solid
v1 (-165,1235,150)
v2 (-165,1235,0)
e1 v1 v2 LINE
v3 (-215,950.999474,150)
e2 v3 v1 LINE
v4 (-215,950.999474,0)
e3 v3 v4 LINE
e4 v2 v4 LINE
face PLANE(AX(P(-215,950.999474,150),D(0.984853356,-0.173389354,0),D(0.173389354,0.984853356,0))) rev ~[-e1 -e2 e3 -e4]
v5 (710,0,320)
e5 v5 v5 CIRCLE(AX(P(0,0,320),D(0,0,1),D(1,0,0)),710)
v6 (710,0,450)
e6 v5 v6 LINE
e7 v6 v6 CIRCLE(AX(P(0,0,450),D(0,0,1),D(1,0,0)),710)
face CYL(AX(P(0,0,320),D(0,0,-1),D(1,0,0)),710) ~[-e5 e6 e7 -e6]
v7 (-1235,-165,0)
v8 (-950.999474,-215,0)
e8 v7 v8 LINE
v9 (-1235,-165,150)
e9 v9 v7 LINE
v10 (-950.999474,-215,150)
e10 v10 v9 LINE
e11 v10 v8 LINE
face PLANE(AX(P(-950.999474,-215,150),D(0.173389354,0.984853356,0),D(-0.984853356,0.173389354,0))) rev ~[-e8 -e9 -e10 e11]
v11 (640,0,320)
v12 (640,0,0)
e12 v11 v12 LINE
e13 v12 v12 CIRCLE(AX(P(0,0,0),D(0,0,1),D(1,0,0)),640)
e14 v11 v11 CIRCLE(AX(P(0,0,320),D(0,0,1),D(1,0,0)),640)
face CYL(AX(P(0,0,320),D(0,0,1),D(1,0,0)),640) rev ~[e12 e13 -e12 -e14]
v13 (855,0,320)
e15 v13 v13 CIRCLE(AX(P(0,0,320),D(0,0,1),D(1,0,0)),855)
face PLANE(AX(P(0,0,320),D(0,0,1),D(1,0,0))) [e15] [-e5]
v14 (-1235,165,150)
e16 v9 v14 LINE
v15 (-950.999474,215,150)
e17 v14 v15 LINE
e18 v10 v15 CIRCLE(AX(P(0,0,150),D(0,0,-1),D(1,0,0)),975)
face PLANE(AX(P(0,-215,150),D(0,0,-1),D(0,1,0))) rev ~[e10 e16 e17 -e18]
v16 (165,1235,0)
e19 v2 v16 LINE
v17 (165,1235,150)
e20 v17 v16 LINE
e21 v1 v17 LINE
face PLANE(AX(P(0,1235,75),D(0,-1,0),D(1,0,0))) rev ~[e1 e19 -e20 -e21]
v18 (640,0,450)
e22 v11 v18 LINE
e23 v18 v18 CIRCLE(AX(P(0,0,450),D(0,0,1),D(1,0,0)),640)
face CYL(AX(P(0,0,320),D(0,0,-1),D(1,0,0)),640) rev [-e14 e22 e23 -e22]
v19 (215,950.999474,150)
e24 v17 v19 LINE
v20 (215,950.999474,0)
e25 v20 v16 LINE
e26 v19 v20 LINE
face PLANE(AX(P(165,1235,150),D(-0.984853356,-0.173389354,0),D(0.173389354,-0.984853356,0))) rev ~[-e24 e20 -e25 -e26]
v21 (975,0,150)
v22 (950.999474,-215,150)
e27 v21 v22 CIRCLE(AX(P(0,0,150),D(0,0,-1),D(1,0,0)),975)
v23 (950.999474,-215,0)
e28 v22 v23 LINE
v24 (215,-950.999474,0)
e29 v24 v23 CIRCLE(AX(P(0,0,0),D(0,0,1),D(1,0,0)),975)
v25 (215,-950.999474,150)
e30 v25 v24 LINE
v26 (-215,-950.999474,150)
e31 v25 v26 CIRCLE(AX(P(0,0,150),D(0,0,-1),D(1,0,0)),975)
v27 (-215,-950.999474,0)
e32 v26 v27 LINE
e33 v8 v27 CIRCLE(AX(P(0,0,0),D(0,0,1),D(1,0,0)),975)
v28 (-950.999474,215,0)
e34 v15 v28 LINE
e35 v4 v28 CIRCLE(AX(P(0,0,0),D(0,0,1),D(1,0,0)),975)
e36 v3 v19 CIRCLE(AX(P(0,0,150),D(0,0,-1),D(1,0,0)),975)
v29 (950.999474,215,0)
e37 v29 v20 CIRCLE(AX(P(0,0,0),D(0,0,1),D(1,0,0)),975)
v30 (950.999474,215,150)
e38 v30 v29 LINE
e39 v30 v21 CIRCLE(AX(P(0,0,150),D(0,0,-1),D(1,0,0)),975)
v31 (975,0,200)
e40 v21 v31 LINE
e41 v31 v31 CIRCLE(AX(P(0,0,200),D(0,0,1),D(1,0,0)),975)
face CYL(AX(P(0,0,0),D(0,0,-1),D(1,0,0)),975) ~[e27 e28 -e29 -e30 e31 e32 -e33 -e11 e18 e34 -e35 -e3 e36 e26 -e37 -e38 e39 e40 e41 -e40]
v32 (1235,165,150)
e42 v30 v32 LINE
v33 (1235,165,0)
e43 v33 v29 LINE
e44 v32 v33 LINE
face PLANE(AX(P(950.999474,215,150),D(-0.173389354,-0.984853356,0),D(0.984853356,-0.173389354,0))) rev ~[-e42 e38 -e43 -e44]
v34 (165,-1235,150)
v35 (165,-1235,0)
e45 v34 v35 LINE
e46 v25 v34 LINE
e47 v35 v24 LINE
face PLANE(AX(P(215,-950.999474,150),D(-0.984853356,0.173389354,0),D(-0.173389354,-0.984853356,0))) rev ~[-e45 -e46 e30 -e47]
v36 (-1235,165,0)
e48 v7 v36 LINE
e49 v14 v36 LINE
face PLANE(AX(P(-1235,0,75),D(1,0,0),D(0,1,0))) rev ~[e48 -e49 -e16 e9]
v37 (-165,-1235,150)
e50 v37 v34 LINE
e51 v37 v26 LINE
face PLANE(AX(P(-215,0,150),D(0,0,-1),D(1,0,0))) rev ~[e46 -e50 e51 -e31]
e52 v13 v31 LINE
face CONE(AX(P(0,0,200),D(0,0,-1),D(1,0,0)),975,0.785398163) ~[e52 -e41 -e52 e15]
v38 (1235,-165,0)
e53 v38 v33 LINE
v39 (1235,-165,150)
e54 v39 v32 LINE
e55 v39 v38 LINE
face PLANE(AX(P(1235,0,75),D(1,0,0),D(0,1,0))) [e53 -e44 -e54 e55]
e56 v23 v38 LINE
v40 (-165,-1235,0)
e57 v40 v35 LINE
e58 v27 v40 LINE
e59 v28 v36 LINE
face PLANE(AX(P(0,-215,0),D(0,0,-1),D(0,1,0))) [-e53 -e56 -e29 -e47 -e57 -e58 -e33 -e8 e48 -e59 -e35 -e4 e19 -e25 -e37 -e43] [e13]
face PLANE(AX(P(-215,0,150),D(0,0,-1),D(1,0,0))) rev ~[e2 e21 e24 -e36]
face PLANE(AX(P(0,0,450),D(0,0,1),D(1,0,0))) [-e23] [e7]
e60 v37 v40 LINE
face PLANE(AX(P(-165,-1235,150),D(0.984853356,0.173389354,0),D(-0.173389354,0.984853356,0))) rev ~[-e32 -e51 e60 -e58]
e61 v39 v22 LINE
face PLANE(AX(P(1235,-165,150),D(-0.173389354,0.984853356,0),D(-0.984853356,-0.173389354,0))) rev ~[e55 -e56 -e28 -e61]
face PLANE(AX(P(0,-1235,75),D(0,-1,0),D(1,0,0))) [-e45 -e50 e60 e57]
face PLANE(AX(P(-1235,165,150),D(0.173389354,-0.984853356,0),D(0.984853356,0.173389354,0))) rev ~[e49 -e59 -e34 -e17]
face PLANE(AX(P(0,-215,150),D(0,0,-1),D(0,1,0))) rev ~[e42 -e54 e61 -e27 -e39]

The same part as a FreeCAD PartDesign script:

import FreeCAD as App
import Part
import Sketcher
from FreeCAD import Vector


def edges_at(feature, points):
    """Names of the edges that pass closest to the given points."""
    edges = feature.Shape.Edges
    near = lambda p: min(range(len(edges)), key=lambda i: edges[i].distToShape(Part.Vertex(*p))[0])
    return sorted({f"Edge{near(p) + 1}" for p in points})


def add_polygon(sketch, points):
    """Adds a closed chain of lines whose ends are joined by coincident constraints."""
    first, n = sketch.GeometryCount, len(points)
    for a, b in zip(points, points[1:] + points[:1]):
        sketch.addGeometry(Part.LineSegment(App.Vector(*a, 0), App.Vector(*b, 0)), False)
    for i in range(n):
        sketch.addConstraint(Sketcher.Constraint("Coincident", first + i, 2, first + (i + 1) % n, 1))

doc = App.newDocument("Part")
body = doc.addObject("PartDesign::Body", "Body")

# Sketch on XY plane
sketch1 = doc.addObject("Sketcher::SketchObject", "Sketch")
body.addObject(sketch1)
sketch1.AttachmentSupport = (doc.XY_Plane, [""])
sketch1.MapMode = "FlatFace"
sketch1.addGeometry(Part.Circle(Vector(0, 0, 0), Vector(0, 0, 1), 975), False)
sketch1.addConstraint(Sketcher.Constraint("Coincident", 0, 3, -1, 1))
sketch1.addConstraint(Sketcher.Constraint("Diameter", 0, 1950.0))
pad1 = doc.addObject("PartDesign::Pad", "Pad")
body.addObject(pad1)
pad1.Profile = sketch1
pad1.Length = 320

# Sketch on XY plane
sketch2 = doc.addObject("Sketcher::SketchObject", "Sketch001")
body.addObject(sketch2)
sketch2.AttachmentSupport = (doc.XY_Plane, [""])
sketch2.MapMode = "FlatFace"
sketch2.AttachmentOffset = App.Placement(Vector(0, 0, 320), App.Rotation())
sketch2.addGeometry(Part.Circle(Vector(0, 0, 0), Vector(0, 0, 1), 640), False)
sketch2.addConstraint(Sketcher.Constraint("Coincident", 0, 3, -1, 1))
sketch2.addConstraint(Sketcher.Constraint("Diameter", 0, 1280.0))
pocket1 = doc.addObject("PartDesign::Pocket", "Pocket")
body.addObject(pocket1)
pocket1.Profile = sketch2
pocket1.Type = "ThroughAll"

# Sketch on XZ plane
sketch3 = doc.addObject("Sketcher::SketchObject", "Sketch002")
body.addObject(sketch3)
sketch3.AttachmentSupport = (doc.XZ_Plane, [""])
sketch3.MapMode = "FlatFace"
add_polygon(sketch3, [(-215, 150), (-215, 0), (215, 0), (215, 150)])  # lines 0-3
sketch3.addConstraint(Sketcher.Constraint("Vertical", 0))
sketch3.addConstraint(Sketcher.Constraint("Horizontal", 1))
sketch3.addConstraint(Sketcher.Constraint("Vertical", 2))
sketch3.addConstraint(Sketcher.Constraint("Horizontal", 3))
sketch3.addConstraint(Sketcher.Constraint("Symmetric", 0, 2, 1, 2, -1, 1))
sketch3.addConstraint(Sketcher.Constraint("DistanceX", 1, 1, 1, 2, 430.0))
sketch3.addConstraint(Sketcher.Constraint("DistanceY", 0, 2, 0, 1, 150.0))
pad2 = doc.addObject("PartDesign::Pad", "Pad001")
body.addObject(pad2)
pad2.Profile = sketch3
pad2.Length = 2470
pad2.Midplane = True

# Sketch on YZ plane
sketch4 = doc.addObject("Sketcher::SketchObject", "Sketch003")
body.addObject(sketch4)
sketch4.AttachmentSupport = (doc.YZ_Plane, [""])
sketch4.MapMode = "FlatFace"
add_polygon(sketch4, [(-215, 150), (-215, 0), (215, 0), (215, 150)])  # lines 0-3
sketch4.addConstraint(Sketcher.Constraint("Vertical", 0))
sketch4.addConstraint(Sketcher.Constraint("Horizontal", 1))
sketch4.addConstraint(Sketcher.Constraint("Vertical", 2))
sketch4.addConstraint(Sketcher.Constraint("Horizontal", 3))
sketch4.addConstraint(Sketcher.Constraint("Symmetric", 0, 2, 1, 2, -1, 1))
sketch4.addConstraint(Sketcher.Constraint("DistanceX", 1, 1, 1, 2, 430.0))
sketch4.addConstraint(Sketcher.Constraint("DistanceY", 0, 2, 0, 1, 150.0))
pad3 = doc.addObject("PartDesign::Pad", "Pad002")
body.addObject(pad3)
pad3.Profile = sketch4
pad3.Length = 2470
pad3.Midplane = True

# Sketch on XY plane
sketch5 = doc.addObject("Sketcher::SketchObject", "Sketch004")
body.addObject(sketch5)
sketch5.AttachmentSupport = (doc.XY_Plane, [""])
sketch5.MapMode = "FlatFace"
sketch5.AttachmentOffset = App.Placement(Vector(0, 0, 150), App.Rotation())
add_polygon(sketch5, [(1235, -165), (950.999474, -215), (1235, -215)])  # lines 0-2
add_polygon(sketch5, [(950.999474, 215), (1235, 165), (1235, 215)])  # lines 3-5
sketch5.addConstraint(Sketcher.Constraint("Horizontal", 1))
sketch5.addConstraint(Sketcher.Constraint("Vertical", 2))
sketch5.addConstraint(Sketcher.Constraint("Vertical", 4))
sketch5.addConstraint(Sketcher.Constraint("Horizontal", 5))
sketch5.addConstraint(Sketcher.Constraint("Symmetric", 2, 2, 3, 2, -1))
sketch5.addConstraint(Sketcher.Constraint("Symmetric", 0, 2, 5, 2, -1))
sketch5.addConstraint(Sketcher.Constraint("DistanceY", 2, 1, 2, 2, 50.0))
sketch5.addConstraint(Sketcher.Constraint("DistanceY", 0, 2, -1, 1, 215.0))
sketch5.addConstraint(Sketcher.Constraint("DistanceX", -1, 1, 1, 2, 1235.0))
sketch5.addConstraint(Sketcher.Constraint("Distance", 0, 288.368339))
pocket2 = doc.addObject("PartDesign::Pocket", "Pocket001")
body.addObject(pocket2)
pocket2.Profile = sketch5
pocket2.Type = "ThroughAll"

# Sketch on XY plane
sketch6 = doc.addObject("Sketcher::SketchObject", "Sketch005")
body.addObject(sketch6)
sketch6.AttachmentSupport = (doc.XY_Plane, [""])
sketch6.MapMode = "FlatFace"
sketch6.AttachmentOffset = App.Placement(Vector(0, 0, 150), App.Rotation())
add_polygon(sketch6, [(-165, -1235), (-215, -950.999474), (-215, -1235)])  # lines 0-2
add_polygon(sketch6, [(215, -950.999474), (165, -1235), (215, -1235)])  # lines 3-5
sketch6.addConstraint(Sketcher.Constraint("Vertical", 1))
sketch6.addConstraint(Sketcher.Constraint("Horizontal", 2))
sketch6.addConstraint(Sketcher.Constraint("Horizontal", 4))
sketch6.addConstraint(Sketcher.Constraint("Vertical", 5))
sketch6.addConstraint(Sketcher.Constraint("Symmetric", 2, 2, 3, 2, -2))
sketch6.addConstraint(Sketcher.Constraint("Symmetric", 0, 2, 5, 2, -2))
sketch6.addConstraint(Sketcher.Constraint("DistanceX", 2, 1, 2, 2, 50.0))
sketch6.addConstraint(Sketcher.Constraint("DistanceX", 0, 2, -1, 1, 215.0))
sketch6.addConstraint(Sketcher.Constraint("DistanceY", 1, 2, -1, 1, 1235.0))
sketch6.addConstraint(Sketcher.Constraint("Distance", 0, 288.368339))
pocket3 = doc.addObject("PartDesign::Pocket", "Pocket002")
body.addObject(pocket3)
pocket3.Profile = sketch6
pocket3.Type = "ThroughAll"

# Sketch on XY plane
sketch7 = doc.addObject("Sketcher::SketchObject", "Sketch006")
body.addObject(sketch7)
sketch7.AttachmentSupport = (doc.XY_Plane, [""])
sketch7.MapMode = "FlatFace"
sketch7.AttachmentOffset = App.Placement(Vector(0, 0, 150), App.Rotation())
add_polygon(sketch7, [(215, 1235), (165, 1235), (215, 950.999474)])  # lines 0-2
add_polygon(sketch7, [(-215, 1235), (-215, 950.999474), (-165, 1235)])  # lines 3-5
sketch7.addConstraint(Sketcher.Constraint("Horizontal", 0))
sketch7.addConstraint(Sketcher.Constraint("Vertical", 2))
sketch7.addConstraint(Sketcher.Constraint("Vertical", 3))
sketch7.addConstraint(Sketcher.Constraint("Horizontal", 5))
sketch7.addConstraint(Sketcher.Constraint("Symmetric", 1, 2, 3, 2, -2))
sketch7.addConstraint(Sketcher.Constraint("Symmetric", 0, 2, 4, 2, -2))
sketch7.addConstraint(Sketcher.Constraint("DistanceX", 0, 2, 0, 1, 50.0))
sketch7.addConstraint(Sketcher.Constraint("DistanceX", -1, 1, 0, 2, 165.0))
sketch7.addConstraint(Sketcher.Constraint("DistanceY", -1, 1, 0, 2, 1235.0))
sketch7.addConstraint(Sketcher.Constraint("Distance", 1, 288.368339))
pocket4 = doc.addObject("PartDesign::Pocket", "Pocket003")
body.addObject(pocket4)
pocket4.Profile = sketch7
pocket4.Type = "ThroughAll"

# Sketch on XY plane
sketch8 = doc.addObject("Sketcher::SketchObject", "Sketch007")
body.addObject(sketch8)
sketch8.AttachmentSupport = (doc.XY_Plane, [""])
sketch8.MapMode = "FlatFace"
sketch8.AttachmentOffset = App.Placement(Vector(0, 0, 150), App.Rotation())
add_polygon(sketch8, [(-1235, 165), (-950.999474, 215), (-1235, 215)])  # lines 0-2
add_polygon(sketch8, [(-950.999474, -215), (-1235, -165), (-1235, -215)])  # lines 3-5
sketch8.addConstraint(Sketcher.Constraint("Horizontal", 1))
sketch8.addConstraint(Sketcher.Constraint("Vertical", 2))
sketch8.addConstraint(Sketcher.Constraint("Vertical", 4))
sketch8.addConstraint(Sketcher.Constraint("Horizontal", 5))
sketch8.addConstraint(Sketcher.Constraint("Symmetric", 2, 2, 3, 2, -1))
sketch8.addConstraint(Sketcher.Constraint("Symmetric", 0, 2, 5, 2, -1))
sketch8.addConstraint(Sketcher.Constraint("DistanceY", 2, 2, 2, 1, 50.0))
sketch8.addConstraint(Sketcher.Constraint("DistanceY", -1, 1, 0, 2, 215.0))
sketch8.addConstraint(Sketcher.Constraint("DistanceX", 1, 2, -1, 1, 1235.0))
sketch8.addConstraint(Sketcher.Constraint("Distance", 0, 288.368339))
pocket5 = doc.addObject("PartDesign::Pocket", "Pocket004")
body.addObject(pocket5)
pocket5.Profile = sketch8
pocket5.Type = "ThroughAll"

# Sketch on XY plane
sketch9 = doc.addObject("Sketcher::SketchObject", "Sketch008")
body.addObject(sketch9)
sketch9.AttachmentSupport = (doc.XY_Plane, [""])
sketch9.MapMode = "FlatFace"
sketch9.AttachmentOffset = App.Placement(Vector(0, 0, 150), App.Rotation())
sketch9.addGeometry(Part.Circle(Vector(0, 0, 0), Vector(0, 0, 1), 640), False)
sketch9.addConstraint(Sketcher.Constraint("Coincident", 0, 3, -1, 1))
sketch9.addConstraint(Sketcher.Constraint("Diameter", 0, 1280.0))
pocket6 = doc.addObject("PartDesign::Pocket", "Pocket005")
body.addObject(pocket6)
pocket6.Profile = sketch9
pocket6.Type = "ThroughAll"

# Sketch on XY plane
sketch10 = doc.addObject("Sketcher::SketchObject", "Sketch009")
body.addObject(sketch10)
sketch10.AttachmentSupport = (doc.XY_Plane, [""])
sketch10.MapMode = "FlatFace"
sketch10.AttachmentOffset = App.Placement(Vector(0, 0, 320), App.Rotation())
sketch10.addGeometry(Part.Circle(Vector(0, 0, 0), Vector(0, 0, 1), 710), False)
sketch10.addGeometry(Part.Circle(Vector(0, 0, 0), Vector(0, 0, 1), 640), False)
sketch10.addConstraint(Sketcher.Constraint("Coincident", 0, 3, -1, 1))
sketch10.addConstraint(Sketcher.Constraint("Coincident", 1, 3, -1, 1))
sketch10.addConstraint(Sketcher.Constraint("Diameter", 0, 1420.0))
sketch10.addConstraint(Sketcher.Constraint("Diameter", 1, 1280.0))
pad4 = doc.addObject("PartDesign::Pad", "Pad003")
body.addObject(pad4)
pad4.Profile = sketch10
pad4.Length = 130
doc.recompute()

chamfer = doc.addObject("PartDesign::Chamfer", "Chamfer")
body.addObject(chamfer)
chamfer.Base = (pad4, edges_at(pad4, [(-975, 0, 320)]))
chamfer.Size = 120

doc.recompute()
